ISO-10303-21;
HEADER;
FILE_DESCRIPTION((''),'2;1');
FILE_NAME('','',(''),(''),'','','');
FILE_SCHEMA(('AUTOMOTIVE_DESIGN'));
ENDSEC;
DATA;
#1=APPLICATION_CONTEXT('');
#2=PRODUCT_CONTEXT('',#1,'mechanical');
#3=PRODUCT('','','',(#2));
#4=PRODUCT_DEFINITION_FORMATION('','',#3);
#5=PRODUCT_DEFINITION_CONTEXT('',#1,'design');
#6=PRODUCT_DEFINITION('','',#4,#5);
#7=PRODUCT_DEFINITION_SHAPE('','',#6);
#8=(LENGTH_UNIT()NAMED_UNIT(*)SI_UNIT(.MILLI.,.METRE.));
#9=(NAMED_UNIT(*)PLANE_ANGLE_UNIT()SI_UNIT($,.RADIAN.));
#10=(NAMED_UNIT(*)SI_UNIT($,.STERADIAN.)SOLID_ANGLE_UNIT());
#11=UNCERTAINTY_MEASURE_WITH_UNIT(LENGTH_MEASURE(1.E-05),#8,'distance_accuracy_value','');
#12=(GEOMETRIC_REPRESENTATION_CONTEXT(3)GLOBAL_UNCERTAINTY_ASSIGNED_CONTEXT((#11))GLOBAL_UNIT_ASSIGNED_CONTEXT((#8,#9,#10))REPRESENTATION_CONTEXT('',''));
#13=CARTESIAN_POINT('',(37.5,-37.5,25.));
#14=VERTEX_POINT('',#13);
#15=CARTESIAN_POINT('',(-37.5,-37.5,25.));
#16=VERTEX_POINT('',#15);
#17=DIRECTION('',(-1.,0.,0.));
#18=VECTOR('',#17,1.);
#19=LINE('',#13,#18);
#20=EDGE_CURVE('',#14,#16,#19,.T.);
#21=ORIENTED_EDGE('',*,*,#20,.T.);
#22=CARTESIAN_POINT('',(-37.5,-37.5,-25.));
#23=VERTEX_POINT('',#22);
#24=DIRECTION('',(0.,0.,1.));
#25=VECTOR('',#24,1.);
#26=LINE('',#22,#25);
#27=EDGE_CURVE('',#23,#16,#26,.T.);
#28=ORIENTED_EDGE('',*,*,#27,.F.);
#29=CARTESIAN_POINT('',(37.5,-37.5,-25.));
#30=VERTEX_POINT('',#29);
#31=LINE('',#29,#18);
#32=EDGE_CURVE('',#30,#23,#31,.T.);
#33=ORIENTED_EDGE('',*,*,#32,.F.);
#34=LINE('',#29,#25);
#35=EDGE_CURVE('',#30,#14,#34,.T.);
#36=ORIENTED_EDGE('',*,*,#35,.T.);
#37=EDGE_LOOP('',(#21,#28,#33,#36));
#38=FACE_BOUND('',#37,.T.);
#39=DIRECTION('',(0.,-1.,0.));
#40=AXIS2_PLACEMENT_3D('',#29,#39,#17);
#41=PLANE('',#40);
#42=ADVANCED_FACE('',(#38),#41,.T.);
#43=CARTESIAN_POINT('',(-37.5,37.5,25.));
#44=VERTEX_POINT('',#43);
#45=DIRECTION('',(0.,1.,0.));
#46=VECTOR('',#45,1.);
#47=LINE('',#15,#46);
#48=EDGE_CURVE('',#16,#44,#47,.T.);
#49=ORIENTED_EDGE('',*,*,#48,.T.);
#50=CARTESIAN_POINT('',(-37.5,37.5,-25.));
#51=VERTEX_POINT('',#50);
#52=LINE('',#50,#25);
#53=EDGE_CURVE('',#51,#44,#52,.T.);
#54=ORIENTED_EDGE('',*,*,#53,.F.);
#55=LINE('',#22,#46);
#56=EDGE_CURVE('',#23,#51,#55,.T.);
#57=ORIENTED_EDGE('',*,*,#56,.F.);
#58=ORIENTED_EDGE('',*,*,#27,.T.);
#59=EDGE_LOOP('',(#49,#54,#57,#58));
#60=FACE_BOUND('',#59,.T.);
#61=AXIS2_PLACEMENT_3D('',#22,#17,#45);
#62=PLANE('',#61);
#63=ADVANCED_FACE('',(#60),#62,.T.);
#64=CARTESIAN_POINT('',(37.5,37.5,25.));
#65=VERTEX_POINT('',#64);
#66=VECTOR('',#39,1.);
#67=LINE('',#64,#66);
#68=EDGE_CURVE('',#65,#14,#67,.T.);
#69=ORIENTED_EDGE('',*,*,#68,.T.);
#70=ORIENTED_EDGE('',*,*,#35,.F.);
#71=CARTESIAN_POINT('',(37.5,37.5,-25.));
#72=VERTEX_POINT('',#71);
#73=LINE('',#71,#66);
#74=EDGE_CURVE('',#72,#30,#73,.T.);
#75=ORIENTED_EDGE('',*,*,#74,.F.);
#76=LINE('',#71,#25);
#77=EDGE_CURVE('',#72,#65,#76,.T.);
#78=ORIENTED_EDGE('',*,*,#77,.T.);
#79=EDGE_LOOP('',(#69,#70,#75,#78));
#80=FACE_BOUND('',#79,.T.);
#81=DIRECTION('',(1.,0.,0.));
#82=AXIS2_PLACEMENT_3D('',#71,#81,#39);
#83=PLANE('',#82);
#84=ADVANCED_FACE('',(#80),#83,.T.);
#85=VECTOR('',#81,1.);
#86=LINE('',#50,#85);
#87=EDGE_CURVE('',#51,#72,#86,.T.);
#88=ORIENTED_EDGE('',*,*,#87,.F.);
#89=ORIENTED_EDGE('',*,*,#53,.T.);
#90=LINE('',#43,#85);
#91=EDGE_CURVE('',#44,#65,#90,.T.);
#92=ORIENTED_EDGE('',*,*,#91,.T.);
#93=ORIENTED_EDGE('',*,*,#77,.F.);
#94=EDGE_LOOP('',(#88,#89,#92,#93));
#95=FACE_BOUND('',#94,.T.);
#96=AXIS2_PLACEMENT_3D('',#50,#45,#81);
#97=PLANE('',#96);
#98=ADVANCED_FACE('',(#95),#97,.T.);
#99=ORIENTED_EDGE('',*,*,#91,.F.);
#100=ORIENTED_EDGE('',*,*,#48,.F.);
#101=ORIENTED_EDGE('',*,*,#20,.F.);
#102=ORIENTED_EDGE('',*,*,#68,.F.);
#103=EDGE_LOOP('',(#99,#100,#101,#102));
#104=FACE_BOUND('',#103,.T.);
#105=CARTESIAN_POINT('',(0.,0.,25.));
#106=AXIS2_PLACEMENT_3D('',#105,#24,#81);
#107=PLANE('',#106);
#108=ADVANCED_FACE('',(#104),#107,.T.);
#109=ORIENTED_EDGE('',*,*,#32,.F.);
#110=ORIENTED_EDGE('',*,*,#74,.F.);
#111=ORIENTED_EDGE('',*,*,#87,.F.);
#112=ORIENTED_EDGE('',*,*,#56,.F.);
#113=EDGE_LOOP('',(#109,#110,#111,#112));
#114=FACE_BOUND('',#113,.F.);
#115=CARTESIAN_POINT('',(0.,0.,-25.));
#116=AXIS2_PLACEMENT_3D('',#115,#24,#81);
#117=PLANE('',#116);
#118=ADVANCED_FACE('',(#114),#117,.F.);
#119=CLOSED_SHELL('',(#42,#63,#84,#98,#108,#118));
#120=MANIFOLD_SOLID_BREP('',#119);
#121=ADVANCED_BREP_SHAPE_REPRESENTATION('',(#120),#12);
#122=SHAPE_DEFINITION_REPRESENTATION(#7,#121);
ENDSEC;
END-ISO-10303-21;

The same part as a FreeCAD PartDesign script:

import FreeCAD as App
import Part
import Sketcher
from FreeCAD import Vector

doc = App.newDocument("Part")
body = doc.addObject("PartDesign::Body", "Body")

# Sketch on XY plane
sketch1 = body.newObject("Sketcher::SketchObject", "Sketch")
sketch1.AttachmentSupport = (doc.getObject("XY_Plane"), [""])
sketch1.MapMode = "FlatFace"
sketch1.AttachmentOffset = App.Placement(Vector(0, 0, -25), App.Rotation())
sketch1.addGeometry(Part.LineSegment(Vector(38, 38, 0), Vector(-38, 38, 0)), False)
sketch1.addGeometry(Part.LineSegment(Vector(-38, 38, 0), Vector(-38, -38, 0)), False)
sketch1.addGeometry(Part.LineSegment(Vector(-38, -38, 0), Vector(38, -38, 0)), False)
sketch1.addGeometry(Part.LineSegment(Vector(38, -38, 0), Vector(38, 38, 0)), False)
sketch1.addConstraint(Sketcher.Constraint("Coincident", 0, 2, 1, 1))
sketch1.addConstraint(Sketcher.Constraint("Coincident", 1, 2, 2, 1))
sketch1.addConstraint(Sketcher.Constraint("Coincident", 2, 2, 3, 1))
sketch1.addConstraint(Sketcher.Constraint("Coincident", 3, 2, 0, 1))
sketch1.addConstraint(Sketcher.Constraint("Horizontal", 0))
sketch1.addConstraint(Sketcher.Constraint("Vertical", 1))
sketch1.addConstraint(Sketcher.Constraint("Horizontal", 2))
sketch1.addConstraint(Sketcher.Constraint("Vertical", 3))
sketch1.addConstraint(Sketcher.Constraint("Symmetric", 0, 2, 2, 2, -1, 1))
sketch1.addConstraint(Sketcher.Constraint("Equal", 2, 1))
sketch1.addConstraint(Sketcher.Constraint("DistanceX", 0, 2, -1, 1, 37.5))
pad1 = body.newObject("PartDesign::Pad", "Pad")
pad1.Profile = sketch1
pad1.Length = 50

doc.recompute()
